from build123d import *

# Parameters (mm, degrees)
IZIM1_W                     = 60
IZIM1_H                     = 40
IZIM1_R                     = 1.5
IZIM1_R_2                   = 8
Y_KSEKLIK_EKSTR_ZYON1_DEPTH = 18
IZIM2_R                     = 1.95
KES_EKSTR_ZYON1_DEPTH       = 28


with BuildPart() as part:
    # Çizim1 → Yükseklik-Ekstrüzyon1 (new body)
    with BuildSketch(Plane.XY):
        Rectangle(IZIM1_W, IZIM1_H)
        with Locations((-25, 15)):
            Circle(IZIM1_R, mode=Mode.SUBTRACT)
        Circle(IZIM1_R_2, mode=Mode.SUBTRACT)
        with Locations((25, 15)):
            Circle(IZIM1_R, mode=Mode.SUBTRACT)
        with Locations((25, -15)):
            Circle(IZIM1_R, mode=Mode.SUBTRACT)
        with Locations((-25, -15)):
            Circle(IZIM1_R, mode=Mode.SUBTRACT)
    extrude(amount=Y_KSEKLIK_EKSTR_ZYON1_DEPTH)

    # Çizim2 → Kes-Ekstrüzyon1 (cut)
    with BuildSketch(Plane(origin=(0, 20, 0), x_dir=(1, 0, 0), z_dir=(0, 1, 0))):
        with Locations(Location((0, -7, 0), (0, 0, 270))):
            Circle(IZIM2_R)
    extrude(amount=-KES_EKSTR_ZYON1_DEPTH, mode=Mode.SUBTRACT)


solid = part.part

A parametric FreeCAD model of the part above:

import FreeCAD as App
import Part
import Sketcher

V = App.Vector


def add_polygon(sketch, points):
    """Adds a closed chain of lines whose ends are joined by coincident constraints."""
    first, n = sketch.GeometryCount, len(points)
    for a, b in zip(points, points[1:] + points[:1]):
        sketch.addGeometry(Part.LineSegment(App.Vector(*a, 0), App.Vector(*b, 0)), False)
    for i in range(n):
        sketch.addConstraint(Sketcher.Constraint("Coincident", first + i, 2, first + (i + 1) % n, 1))

doc = App.newDocument("Part")
body = doc.addObject("PartDesign::Body", "Body")

# Sketch on XY plane
sketch1 = body.newObject("Sketcher::SketchObject", "Sketch")
sketch1.AttachmentSupport = (doc.getObject("XY_Plane"), [""])
sketch1.MapMode = "FlatFace"
add_polygon(sketch1, [(-30, 20), (-30, -20), (30, -20), (30, 20)])  # lines 0-3
sketch1.addGeometry(Part.Circle(V(-25, -15, 0), V(0, 0, 1), 1.5), False)  # 4
sketch1.addGeometry(Part.Circle(V(25, -15, 0), V(0, 0, 1), 1.5), False)  # 5
sketch1.addGeometry(Part.Circle(V(-25, 15, 0), V(0, 0, 1), 1.5), False)  # 6
sketch1.addGeometry(Part.Circle(V(0, 0, 0), V(0, 0, 1), 8), False)  # 7
sketch1.addGeometry(Part.Circle(V(25, 15, 0), V(0, 0, 1), 1.5), False)  # 8
sketch1.addConstraint([
    Sketcher.Constraint("Vertical", 0),
    Sketcher.Constraint("Horizontal", 1),
    Sketcher.Constraint("Vertical", 2),
    Sketcher.Constraint("Horizontal", 3),
    Sketcher.Constraint("Coincident", 7, 3, -1, 1),
    Sketcher.Constraint("Equal", 4, 5),
    Sketcher.Constraint("Equal", 5, 6),
    Sketcher.Constraint("Equal", 6, 8),
    Sketcher.Constraint("Symmetric", 5, 3, 6, 3, -1, 1),
    Sketcher.Constraint("Symmetric", 4, 3, 8, 3, -1, 1),
    Sketcher.Constraint("Symmetric", 0, 2, 2, 2, -1, 1),
    Sketcher.Constraint("Symmetric", 4, 3, 5, 3, -2),
    Sketcher.Constraint("Diameter", 4, 3.0),
    Sketcher.Constraint("Diameter", 7, 16.0),
    Sketcher.Constraint("DistanceX", 1, 1, 1, 2, 60.0),
    Sketcher.Constraint("DistanceY", 0, 2, 0, 1, 40.0),
    Sketcher.Constraint("DistanceX", 4, 3, -1, 1, 25.0),
    Sketcher.Constraint("DistanceY", 4, 3, -1, 1, 15.0),
])
pad1 = body.newObject("PartDesign::Pad", "Pad")
pad1.Profile = sketch1
pad1.Length = 18

# Sketch on XZ plane
sketch2 = body.newObject("Sketcher::SketchObject", "Sketch001")
sketch2.AttachmentSupport = (doc.getObject("XZ_Plane"), [""])
sketch2.MapMode = "FlatFace"
sketch2.AttachmentOffset = App.Placement(V(0, 0, -20), App.Rotation())
sketch2.addGeometry(Part.Circle(V(0, 7, 0), V(0, 0, 1), 1.9), False)
sketch2.addConstraint([
    Sketcher.Constraint("PointOnObject", 0, 3, -2),
    Sketcher.Constraint("Diameter", 0, 3.9),
    Sketcher.Constraint("DistanceY", -1, 1, 0, 3, 7.0),
])
pocket1 = body.newObject("PartDesign::Pocket", "Pocket")
pocket1.Profile = sketch2
pocket1.Length = 28
pocket1.Reversed = True

doc.recompute()
